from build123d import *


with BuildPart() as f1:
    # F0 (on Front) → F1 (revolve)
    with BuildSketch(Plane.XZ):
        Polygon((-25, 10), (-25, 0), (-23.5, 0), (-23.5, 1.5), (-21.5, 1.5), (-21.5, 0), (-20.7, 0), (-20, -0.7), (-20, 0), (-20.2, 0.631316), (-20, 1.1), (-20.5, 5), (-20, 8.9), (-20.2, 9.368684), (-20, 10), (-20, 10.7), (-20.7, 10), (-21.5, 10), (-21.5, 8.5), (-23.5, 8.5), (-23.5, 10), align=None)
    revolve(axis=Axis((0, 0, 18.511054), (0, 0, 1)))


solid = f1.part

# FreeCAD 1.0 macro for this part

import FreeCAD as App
import Part
import Sketcher

V = App.Vector
Q = App.Units.Quantity

doc = App.newDocument("Part")
body = doc.addObject("PartDesign::Body", "Body")

sketch1 = body.newObject("Sketcher::SketchObject", "Sketch")
sketch1.AttachmentSupport = (doc.getObject("XZ_Plane"), [""])
sketch1.MapMode = "FlatFace"
sketch1.addGeometry(Part.LineSegment(V(-25, 10, 0), V(-25, 0, 0)), False)
sketch1.addGeometry(Part.LineSegment(V(-25, 0, 0), V(-23.5, 0, 0)), False)
sketch1.addGeometry(Part.LineSegment(V(-23.5, 0, 0), V(-23.5, 1.5, 0)), False)
sketch1.addGeometry(Part.LineSegment(V(-23.5, 1.5, 0), V(-21.5, 1.5, 0)), False)
sketch1.addGeometry(Part.LineSegment(V(-21.5, 1.5, 0), V(-21.5, 0, 0)), False)
sketch1.addGeometry(Part.LineSegment(V(-21.5, 0, 0), V(-20.7, 0, 0)), False)
sketch1.addGeometry(Part.LineSegment(V(-20.7, 0, 0), V(-20, -0.7, 0)), False)
sketch1.addGeometry(Part.LineSegment(V(-20, -0.7, 0), V(-20, 0, 0)), False)
sketch1.addGeometry(Part.LineSegment(V(-20, 0, 0), V(-20.2, 0.6, 0)), False)
sketch1.addGeometry(Part.LineSegment(V(-20.2, 0.6, 0), V(-20, 1.1, 0)), False)
sketch1.addGeometry(Part.LineSegment(V(-20, 1.1, 0), V(-20.5, 5, 0)), False)
sketch1.addGeometry(Part.LineSegment(V(-20.5, 5, 0), V(-20, 8.9, 0)), False)
sketch1.addGeometry(Part.LineSegment(V(-20, 8.9, 0), V(-20.2, 9.4, 0)), False)
sketch1.addGeometry(Part.LineSegment(V(-20.2, 9.4, 0), V(-20, 10, 0)), False)
sketch1.addGeometry(Part.LineSegment(V(-20, 10, 0), V(-20, 10.7, 0)), False)
sketch1.addGeometry(Part.LineSegment(V(-20, 10.7, 0), V(-20.7, 10, 0)), False)
sketch1.addGeometry(Part.LineSegment(V(-20.7, 10, 0), V(-21.5, 10, 0)), False)
sketch1.addGeometry(Part.LineSegment(V(-21.5, 10, 0), V(-21.5, 8.5, 0)), False)
sketch1.addGeometry(Part.LineSegment(V(-21.5, 8.5, 0), V(-23.5, 8.5, 0)), False)
sketch1.addGeometry(Part.LineSegment(V(-23.5, 8.5, 0), V(-23.5, 10, 0)), False)
sketch1.addGeometry(Part.LineSegment(V(-23.5, 10, 0), V(-25, 10, 0)), False)
sketch1.addConstraint(Sketcher.Constraint("Coincident", 0, 2, 1, 1))
sketch1.addConstraint(Sketcher.Constraint("Coincident", 1, 2, 2, 1))
sketch1.addConstraint(Sketcher.Constraint("Coincident", 2, 2, 3, 1))
sketch1.addConstraint(Sketcher.Constraint("Coincident", 3, 2, 4, 1))
sketch1.addConstraint(Sketcher.Constraint("Coincident", 4, 2, 5, 1))
sketch1.addConstraint(Sketcher.Constraint("Coincident", 5, 2, 6, 1))
sketch1.addConstraint(Sketcher.Constraint("Coincident", 6, 2, 7, 1))
sketch1.addConstraint(Sketcher.Constraint("Coincident", 7, 2, 8, 1))
sketch1.addConstraint(Sketcher.Constraint("Coincident", 8, 2, 9, 1))
sketch1.addConstraint(Sketcher.Constraint("Coincident", 9, 2, 10, 1))
sketch1.addConstraint(Sketcher.Constraint("Coincident", 10, 2, 11, 1))
sketch1.addConstraint(Sketcher.Constraint("Coincident", 11, 2, 12, 1))
sketch1.addConstraint(Sketcher.Constraint("Coincident", 12, 2, 13, 1))
sketch1.addConstraint(Sketcher.Constraint("Coincident", 13, 2, 14, 1))
sketch1.addConstraint(Sketcher.Constraint("Coincident", 14, 2, 15, 1))
sketch1.addConstraint(Sketcher.Constraint("Coincident", 15, 2, 16, 1))
sketch1.addConstraint(Sketcher.Constraint("Coincident", 16, 2, 17, 1))
sketch1.addConstraint(Sketcher.Constraint("Coincident", 17, 2, 18, 1))
sketch1.addConstraint(Sketcher.Constraint("Coincident", 18, 2, 19, 1))
sketch1.addConstraint(Sketcher.Constraint("Coincident", 19, 2, 20, 1))
sketch1.addConstraint(Sketcher.Constraint("Coincident", 20, 2, 0, 1))
sketch1.addConstraint(Sketcher.Constraint("Vertical", 0))
sketch1.addConstraint(Sketcher.Constraint("Horizontal", 1))
sketch1.addConstraint(Sketcher.Constraint("Vertical", 2))
sketch1.addConstraint(Sketcher.Constraint("Horizontal", 3))
sketch1.addConstraint(Sketcher.Constraint("Vertical", 4))
sketch1.addConstraint(Sketcher.Constraint("Horizontal", 5))
sketch1.addConstraint(Sketcher.Constraint("Vertical", 7))
sketch1.addConstraint(Sketcher.Constraint("Vertical", 14))
sketch1.addConstraint(Sketcher.Constraint("Horizontal", 16))
sketch1.addConstraint(Sketcher.Constraint("Vertical", 17))
sketch1.addConstraint(Sketcher.Constraint("Horizontal", 18))
sketch1.addConstraint(Sketcher.Constraint("Vertical", 19))
sketch1.addConstraint(Sketcher.Constraint("Horizontal", 20))
sketch1.addConstraint(Sketcher.Constraint("PointOnObject", 0, 2, -1))
sketch1.addConstraint(Sketcher.Constraint("PointOnObject", 4, 2, -1))
sketch1.addConstraint(Sketcher.Constraint("PointOnObject", 7, 2, -1))
sketch1.addConstraint(Sketcher.Constraint("Perpendicular", 6, 15))
sketch1.addConstraint(Sketcher.Constraint("Horizontal", 13, 2, 15, 2))
sketch1.addConstraint(Sketcher.Constraint("Horizontal", 16, 2, 19, 2))
sketch1.addConstraint(Sketcher.Constraint("Vertical", 7, 2, 9, 2))
sketch1.addConstraint(Sketcher.Constraint("Vertical", 9, 2, 11, 2))
sketch1.addConstraint(Sketcher.Constraint("Vertical", 8, 2, 12, 2))
sketch1.addConstraint(Sketcher.Constraint("Vertical", 11, 2, 13, 2))
sketch1.addConstraint(Sketcher.Constraint("Vertical", 5, 2, 15, 2))
sketch1.addConstraint(Sketcher.Constraint("Vertical", 4, 2, 16, 2))
sketch1.addConstraint(Sketcher.Constraint("Vertical", 2, 2, 18, 2))
sketch1.addConstraint(Sketcher.Constraint("Equal", 20, 2))
sketch1.addConstraint(Sketcher.Constraint("Equal", 7, 14))
sketch1.addConstraint(Sketcher.Constraint("Equal", 4, 17))
sketch1.addConstraint(Sketcher.Constraint("Equal", 10, 11))
sketch1.addConstraint(Sketcher.Constraint("Equal", 9, 12))
sketch1.addConstraint(Sketcher.Constraint("Equal", 8, 13))
sketch1.addConstraint(Sketcher.Constraint("DistanceX", 3, 1, 3, 2, Q("2 mm")))
sketch1.addConstraint(Sketcher.Constraint("DistanceY", 0, 2, 0, 1, Q("10 mm")))
sketch1.addConstraint(Sketcher.Constraint("DistanceX", 1, 1, 1, 2, Q("1.5 mm")))
sketch1.addConstraint(Sketcher.Constraint("DistanceX", 5, 1, 5, 2, Q("0.8 mm")))
sketch1.addConstraint(Sketcher.Constraint("DistanceY", 7, 1, 7, 2, Q("0.7 mm")))
sketch1.addConstraint(Sketcher.Constraint("DistanceX", 0, 2, -1, 1, Q("25 mm")))
sketch1.addConstraint(Sketcher.Constraint("DistanceX", 3, 2, 10, 2, Q("1 mm")))
sketch1.addConstraint(Sketcher.Constraint("DistanceX", 8, 2, -1, 1, Q("20.2 mm")))
sketch1.addConstraint(Sketcher.Constraint("DistanceY", -1, 1, 9, 2, Q("1.1 mm")))
sketch1.addConstraint(Sketcher.Constraint("Distance", 8, Q("0.662239 mm")))
revolution = body.newObject("PartDesign::Revolution", "Revolution")
revolution.Profile = sketch1
revolution.ReferenceAxis = (sketch1, ["V_Axis"])
revolution.Angle = 360

doc.recompute()
